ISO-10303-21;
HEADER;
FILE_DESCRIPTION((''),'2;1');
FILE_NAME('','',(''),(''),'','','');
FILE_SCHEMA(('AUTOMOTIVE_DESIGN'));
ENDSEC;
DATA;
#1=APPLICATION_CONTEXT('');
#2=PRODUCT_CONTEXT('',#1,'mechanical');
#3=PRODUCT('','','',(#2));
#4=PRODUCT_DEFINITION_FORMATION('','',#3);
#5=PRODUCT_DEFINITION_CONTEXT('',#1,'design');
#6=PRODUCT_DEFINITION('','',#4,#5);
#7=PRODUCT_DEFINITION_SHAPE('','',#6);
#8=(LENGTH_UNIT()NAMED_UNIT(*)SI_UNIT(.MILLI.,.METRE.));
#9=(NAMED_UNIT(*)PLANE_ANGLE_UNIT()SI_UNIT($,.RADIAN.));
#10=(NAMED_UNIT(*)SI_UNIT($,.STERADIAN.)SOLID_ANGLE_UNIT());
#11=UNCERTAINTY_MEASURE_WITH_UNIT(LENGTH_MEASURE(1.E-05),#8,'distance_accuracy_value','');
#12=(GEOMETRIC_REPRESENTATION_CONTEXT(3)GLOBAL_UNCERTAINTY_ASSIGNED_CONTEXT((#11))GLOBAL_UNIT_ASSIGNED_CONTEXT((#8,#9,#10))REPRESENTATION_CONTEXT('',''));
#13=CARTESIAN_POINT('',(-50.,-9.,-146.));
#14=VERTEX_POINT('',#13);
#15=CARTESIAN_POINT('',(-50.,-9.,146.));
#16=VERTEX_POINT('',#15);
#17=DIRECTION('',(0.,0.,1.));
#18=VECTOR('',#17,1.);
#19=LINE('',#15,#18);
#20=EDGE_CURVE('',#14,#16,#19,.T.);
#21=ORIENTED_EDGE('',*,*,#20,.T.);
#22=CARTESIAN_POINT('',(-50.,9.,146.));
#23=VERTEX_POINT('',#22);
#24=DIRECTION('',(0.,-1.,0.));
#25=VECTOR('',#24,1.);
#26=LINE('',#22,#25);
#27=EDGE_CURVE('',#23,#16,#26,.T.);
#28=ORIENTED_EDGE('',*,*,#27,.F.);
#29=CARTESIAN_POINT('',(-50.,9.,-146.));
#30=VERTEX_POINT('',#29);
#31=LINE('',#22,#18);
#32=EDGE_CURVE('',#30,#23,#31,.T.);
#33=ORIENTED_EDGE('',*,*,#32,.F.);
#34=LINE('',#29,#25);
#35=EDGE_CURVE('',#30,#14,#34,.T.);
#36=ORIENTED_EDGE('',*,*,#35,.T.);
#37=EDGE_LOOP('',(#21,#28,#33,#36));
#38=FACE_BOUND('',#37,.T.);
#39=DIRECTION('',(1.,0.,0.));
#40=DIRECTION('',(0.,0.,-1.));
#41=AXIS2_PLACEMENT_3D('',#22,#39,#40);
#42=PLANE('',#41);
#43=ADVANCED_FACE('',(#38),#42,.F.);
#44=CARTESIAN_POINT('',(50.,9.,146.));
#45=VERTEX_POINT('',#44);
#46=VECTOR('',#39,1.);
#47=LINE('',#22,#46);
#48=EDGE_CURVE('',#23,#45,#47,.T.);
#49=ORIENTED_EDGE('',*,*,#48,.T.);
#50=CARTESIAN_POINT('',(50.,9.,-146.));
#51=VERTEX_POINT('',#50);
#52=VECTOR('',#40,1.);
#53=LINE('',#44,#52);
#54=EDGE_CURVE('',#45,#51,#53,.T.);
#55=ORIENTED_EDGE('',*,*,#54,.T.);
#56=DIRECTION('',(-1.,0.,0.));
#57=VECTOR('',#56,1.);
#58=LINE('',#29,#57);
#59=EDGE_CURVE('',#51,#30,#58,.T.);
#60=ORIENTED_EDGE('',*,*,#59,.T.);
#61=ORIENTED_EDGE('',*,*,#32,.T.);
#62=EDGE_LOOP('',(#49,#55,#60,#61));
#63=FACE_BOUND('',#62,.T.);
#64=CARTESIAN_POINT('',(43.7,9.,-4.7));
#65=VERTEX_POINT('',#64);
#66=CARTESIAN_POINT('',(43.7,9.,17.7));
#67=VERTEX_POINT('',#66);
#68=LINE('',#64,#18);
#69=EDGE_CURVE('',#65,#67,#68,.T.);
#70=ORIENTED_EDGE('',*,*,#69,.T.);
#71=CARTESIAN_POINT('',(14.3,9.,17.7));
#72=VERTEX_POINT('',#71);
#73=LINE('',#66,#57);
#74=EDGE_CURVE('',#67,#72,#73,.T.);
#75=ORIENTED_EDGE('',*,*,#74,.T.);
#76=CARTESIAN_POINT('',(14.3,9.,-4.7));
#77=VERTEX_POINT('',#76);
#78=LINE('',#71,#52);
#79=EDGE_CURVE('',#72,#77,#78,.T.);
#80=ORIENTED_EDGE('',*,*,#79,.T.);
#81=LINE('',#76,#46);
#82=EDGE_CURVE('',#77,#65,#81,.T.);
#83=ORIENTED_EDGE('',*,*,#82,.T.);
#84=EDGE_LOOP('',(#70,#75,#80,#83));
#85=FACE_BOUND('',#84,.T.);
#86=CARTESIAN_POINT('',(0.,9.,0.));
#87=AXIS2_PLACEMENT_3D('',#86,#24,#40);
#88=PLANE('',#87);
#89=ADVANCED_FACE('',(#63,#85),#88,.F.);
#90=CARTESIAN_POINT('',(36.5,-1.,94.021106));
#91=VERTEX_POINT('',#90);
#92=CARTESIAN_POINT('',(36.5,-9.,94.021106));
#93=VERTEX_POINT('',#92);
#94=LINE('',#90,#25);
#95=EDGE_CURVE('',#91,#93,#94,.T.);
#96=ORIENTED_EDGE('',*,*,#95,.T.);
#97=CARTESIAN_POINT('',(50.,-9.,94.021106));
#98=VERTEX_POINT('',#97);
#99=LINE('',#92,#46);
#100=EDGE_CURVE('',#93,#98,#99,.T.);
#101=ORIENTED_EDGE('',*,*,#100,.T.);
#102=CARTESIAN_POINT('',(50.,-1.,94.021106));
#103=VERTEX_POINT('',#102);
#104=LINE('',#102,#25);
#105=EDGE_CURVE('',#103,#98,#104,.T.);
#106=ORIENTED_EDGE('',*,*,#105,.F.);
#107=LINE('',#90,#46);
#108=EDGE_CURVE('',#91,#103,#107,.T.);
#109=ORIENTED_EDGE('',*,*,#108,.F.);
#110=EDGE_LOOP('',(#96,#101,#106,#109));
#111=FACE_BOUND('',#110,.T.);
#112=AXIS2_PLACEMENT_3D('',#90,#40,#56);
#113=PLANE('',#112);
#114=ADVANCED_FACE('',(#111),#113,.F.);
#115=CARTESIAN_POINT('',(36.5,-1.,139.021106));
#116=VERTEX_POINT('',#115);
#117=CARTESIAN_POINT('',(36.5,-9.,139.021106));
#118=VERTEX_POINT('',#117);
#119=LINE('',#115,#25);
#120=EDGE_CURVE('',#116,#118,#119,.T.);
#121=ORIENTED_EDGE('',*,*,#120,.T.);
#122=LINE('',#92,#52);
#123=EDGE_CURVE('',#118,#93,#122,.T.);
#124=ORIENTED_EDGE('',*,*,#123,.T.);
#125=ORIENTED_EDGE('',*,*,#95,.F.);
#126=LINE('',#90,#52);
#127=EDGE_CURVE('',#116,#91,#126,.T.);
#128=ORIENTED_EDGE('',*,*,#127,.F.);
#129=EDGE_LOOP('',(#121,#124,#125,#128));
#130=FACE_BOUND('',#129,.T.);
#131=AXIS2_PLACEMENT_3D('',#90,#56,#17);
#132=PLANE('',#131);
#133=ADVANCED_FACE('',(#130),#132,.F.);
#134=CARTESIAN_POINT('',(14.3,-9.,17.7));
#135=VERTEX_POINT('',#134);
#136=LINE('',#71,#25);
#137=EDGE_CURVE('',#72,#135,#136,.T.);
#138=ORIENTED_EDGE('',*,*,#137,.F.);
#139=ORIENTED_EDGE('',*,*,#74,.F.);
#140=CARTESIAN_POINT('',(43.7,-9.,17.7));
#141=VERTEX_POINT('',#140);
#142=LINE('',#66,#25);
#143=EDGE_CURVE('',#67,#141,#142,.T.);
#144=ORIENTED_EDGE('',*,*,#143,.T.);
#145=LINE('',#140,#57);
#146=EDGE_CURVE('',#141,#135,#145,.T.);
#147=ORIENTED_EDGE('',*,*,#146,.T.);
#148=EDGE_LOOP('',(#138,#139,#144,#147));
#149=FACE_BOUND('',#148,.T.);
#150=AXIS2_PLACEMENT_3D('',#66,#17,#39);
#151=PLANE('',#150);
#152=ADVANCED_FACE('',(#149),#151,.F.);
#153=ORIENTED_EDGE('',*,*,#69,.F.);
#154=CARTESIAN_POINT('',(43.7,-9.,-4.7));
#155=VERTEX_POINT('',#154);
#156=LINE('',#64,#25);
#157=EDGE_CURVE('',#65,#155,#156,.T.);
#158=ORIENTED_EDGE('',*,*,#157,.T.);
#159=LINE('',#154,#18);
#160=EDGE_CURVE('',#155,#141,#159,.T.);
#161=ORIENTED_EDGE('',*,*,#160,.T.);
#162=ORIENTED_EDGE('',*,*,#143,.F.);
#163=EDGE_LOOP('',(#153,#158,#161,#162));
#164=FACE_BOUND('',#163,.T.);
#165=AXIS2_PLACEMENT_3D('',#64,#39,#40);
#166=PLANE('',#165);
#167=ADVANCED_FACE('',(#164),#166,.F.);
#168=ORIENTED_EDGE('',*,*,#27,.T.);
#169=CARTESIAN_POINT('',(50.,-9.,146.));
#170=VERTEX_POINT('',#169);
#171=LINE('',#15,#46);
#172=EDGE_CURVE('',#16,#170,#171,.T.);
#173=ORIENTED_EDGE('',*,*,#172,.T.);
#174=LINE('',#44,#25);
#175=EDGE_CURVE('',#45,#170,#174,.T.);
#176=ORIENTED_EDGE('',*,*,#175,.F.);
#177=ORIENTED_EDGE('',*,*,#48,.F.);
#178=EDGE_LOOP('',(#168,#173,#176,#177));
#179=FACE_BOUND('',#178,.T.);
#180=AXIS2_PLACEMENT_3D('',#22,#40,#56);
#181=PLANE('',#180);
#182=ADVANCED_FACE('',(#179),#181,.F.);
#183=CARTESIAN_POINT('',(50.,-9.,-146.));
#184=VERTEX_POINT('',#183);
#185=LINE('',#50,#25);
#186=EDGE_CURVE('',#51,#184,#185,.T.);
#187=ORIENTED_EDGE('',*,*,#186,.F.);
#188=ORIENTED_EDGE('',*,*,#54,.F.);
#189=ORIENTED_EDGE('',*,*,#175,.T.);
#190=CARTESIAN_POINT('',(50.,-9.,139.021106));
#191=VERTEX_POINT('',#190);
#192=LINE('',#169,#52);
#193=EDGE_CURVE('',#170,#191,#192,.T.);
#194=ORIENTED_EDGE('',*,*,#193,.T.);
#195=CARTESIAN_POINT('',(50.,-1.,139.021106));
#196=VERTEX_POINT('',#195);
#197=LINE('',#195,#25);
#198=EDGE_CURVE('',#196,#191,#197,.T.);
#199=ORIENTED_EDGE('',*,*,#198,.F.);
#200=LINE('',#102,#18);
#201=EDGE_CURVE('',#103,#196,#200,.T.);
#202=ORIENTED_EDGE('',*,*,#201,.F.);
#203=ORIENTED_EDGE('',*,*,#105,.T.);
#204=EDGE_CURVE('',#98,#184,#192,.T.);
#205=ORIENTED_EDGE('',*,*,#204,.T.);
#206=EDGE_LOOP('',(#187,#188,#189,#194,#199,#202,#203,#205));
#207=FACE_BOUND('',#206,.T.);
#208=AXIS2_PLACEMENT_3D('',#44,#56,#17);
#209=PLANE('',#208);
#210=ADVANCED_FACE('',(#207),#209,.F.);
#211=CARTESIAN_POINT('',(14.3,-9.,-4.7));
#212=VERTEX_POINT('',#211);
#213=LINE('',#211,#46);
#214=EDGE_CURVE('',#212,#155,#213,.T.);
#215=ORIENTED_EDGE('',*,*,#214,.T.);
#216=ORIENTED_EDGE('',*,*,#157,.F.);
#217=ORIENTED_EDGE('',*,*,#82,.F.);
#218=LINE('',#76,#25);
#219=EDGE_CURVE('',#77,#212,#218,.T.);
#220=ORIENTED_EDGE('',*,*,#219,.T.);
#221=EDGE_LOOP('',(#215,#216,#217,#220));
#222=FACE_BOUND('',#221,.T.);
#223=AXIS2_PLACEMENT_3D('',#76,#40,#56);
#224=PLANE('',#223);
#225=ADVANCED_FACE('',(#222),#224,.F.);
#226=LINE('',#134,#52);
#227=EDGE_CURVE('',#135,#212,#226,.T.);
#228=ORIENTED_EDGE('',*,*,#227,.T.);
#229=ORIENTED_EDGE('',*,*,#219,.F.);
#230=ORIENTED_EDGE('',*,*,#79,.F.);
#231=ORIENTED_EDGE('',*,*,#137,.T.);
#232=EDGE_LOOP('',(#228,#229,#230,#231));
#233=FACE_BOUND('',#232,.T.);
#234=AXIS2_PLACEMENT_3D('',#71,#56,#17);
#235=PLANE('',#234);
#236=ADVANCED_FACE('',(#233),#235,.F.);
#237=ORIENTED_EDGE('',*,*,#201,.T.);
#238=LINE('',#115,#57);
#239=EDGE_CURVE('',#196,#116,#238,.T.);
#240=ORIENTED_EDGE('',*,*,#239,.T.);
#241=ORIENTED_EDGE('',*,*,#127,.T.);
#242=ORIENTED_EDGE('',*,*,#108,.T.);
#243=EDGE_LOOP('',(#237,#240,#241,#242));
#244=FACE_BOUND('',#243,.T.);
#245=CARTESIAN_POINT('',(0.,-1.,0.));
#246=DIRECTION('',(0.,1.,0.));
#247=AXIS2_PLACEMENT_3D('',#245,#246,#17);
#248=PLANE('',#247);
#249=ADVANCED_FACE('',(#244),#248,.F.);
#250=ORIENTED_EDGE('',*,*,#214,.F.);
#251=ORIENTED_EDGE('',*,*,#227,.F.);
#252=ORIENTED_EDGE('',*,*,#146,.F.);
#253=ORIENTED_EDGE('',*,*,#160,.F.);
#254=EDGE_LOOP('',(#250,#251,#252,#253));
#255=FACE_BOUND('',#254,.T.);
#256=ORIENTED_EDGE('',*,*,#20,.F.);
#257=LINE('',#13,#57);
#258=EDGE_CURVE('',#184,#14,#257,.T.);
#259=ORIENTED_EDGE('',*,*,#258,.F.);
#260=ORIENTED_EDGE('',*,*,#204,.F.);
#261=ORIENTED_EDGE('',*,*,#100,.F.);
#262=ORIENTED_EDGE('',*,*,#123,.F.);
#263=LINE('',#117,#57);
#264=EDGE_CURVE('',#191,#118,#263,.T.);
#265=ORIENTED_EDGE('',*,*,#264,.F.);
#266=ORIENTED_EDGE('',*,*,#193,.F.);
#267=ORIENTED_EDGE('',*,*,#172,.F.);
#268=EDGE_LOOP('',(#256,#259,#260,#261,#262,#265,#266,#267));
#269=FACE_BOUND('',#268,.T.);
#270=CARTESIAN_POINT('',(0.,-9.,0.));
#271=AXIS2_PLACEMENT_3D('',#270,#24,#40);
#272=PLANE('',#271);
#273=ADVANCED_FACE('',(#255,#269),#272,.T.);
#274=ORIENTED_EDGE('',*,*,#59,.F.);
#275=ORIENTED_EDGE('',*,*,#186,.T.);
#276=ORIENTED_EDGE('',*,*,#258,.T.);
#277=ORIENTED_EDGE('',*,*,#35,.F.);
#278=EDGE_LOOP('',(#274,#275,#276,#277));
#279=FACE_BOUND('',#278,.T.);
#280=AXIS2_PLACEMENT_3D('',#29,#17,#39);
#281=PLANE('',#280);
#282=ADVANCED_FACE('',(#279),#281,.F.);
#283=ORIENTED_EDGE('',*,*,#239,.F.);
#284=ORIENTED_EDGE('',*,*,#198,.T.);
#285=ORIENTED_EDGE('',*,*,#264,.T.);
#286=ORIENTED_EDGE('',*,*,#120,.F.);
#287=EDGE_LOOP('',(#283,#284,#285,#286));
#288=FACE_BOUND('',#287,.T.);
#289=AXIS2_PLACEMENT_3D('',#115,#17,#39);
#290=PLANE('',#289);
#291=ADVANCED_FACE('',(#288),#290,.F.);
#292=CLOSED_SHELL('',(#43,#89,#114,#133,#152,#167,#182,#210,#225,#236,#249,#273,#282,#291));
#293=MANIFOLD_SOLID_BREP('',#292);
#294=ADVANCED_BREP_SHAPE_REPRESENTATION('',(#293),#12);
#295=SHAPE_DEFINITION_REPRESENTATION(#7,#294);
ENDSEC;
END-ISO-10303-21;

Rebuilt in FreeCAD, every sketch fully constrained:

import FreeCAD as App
import Part
import Sketcher
Q = App.Units.Quantity


def add_polygon(sketch, points):
    """Adds a closed chain of lines whose ends are joined by coincident constraints."""
    first, n = sketch.GeometryCount, len(points)
    for a, b in zip(points, points[1:] + points[:1]):
        sketch.addGeometry(Part.LineSegment(App.Vector(*a, 0), App.Vector(*b, 0)), False)
    for i in range(n):
        sketch.addConstraint(Sketcher.Constraint("Coincident", first + i, 2, first + (i + 1) % n, 1))

doc = App.newDocument("Part")
body = doc.addObject("PartDesign::Body", "Body")

# Sketch on XZ plane
sketch1 = body.newObject("Sketcher::SketchObject", "Sketch")
sketch1.AttachmentSupport = (doc.getObject("XZ_Plane"), [""])
sketch1.MapMode = "FlatFace"
add_polygon(sketch1, [(-50, -146), (-50, 146), (50, 146), (50, -146)])  # lines 0-3
sketch1.addConstraint(Sketcher.Constraint("Vertical", 0))
sketch1.addConstraint(Sketcher.Constraint("Horizontal", 1))
sketch1.addConstraint(Sketcher.Constraint("Vertical", 2))
sketch1.addConstraint(Sketcher.Constraint("Horizontal", 3))
sketch1.addConstraint(Sketcher.Constraint("Symmetric", 0, 2, 2, 2, -1, 1))
sketch1.addConstraint(Sketcher.Constraint("DistanceX", 1, 1, 1, 2, Q("100 mm")))
sketch1.addConstraint(Sketcher.Constraint("DistanceY", 0, 1, 0, 2, Q("292 mm")))
pad1 = body.newObject("PartDesign::Pad", "Pad")
pad1.Profile = sketch1
pad1.Length = 18
pad1.Midplane = True

# Sketch on XZ plane
sketch2 = body.newObject("Sketcher::SketchObject", "Sketch001")
sketch2.AttachmentSupport = (doc.getObject("XZ_Plane"), [""])
sketch2.MapMode = "FlatFace"
sketch2.AttachmentOffset = App.Placement(App.Vector(0, 0, 9), App.Rotation())
add_polygon(sketch2, [(14, 18), (14, -5), (44, -5), (44, 18)])  # lines 0-3
sketch2.addConstraint(Sketcher.Constraint("Vertical", 0))
sketch2.addConstraint(Sketcher.Constraint("Horizontal", 1))
sketch2.addConstraint(Sketcher.Constraint("Vertical", 2))
sketch2.addConstraint(Sketcher.Constraint("Horizontal", 3))
sketch2.addConstraint(Sketcher.Constraint("DistanceX", 1, 1, 1, 2, Q("29.4 mm")))
sketch2.addConstraint(Sketcher.Constraint("DistanceY", 0, 2, 0, 1, Q("22.4 mm")))
sketch2.addConstraint(Sketcher.Constraint("DistanceX", -1, 1, 0, 2, Q("14.3 mm")))
sketch2.addConstraint(Sketcher.Constraint("DistanceY", 0, 2, -1, 1, Q("4.7 mm")))
pocket1 = body.newObject("PartDesign::Pocket", "Pocket")
pocket1.Profile = sketch2
pocket1.Type = "ThroughAll"

# Sketch on XZ plane
sketch3 = body.newObject("Sketcher::SketchObject", "Sketch002")
sketch3.AttachmentSupport = (doc.getObject("XZ_Plane"), [""])
sketch3.MapMode = "FlatFace"
sketch3.AttachmentOffset = App.Placement(App.Vector(0, 0, 9), App.Rotation())
add_polygon(sketch3, [(36, 139), (36, 94), (50, 94), (50, 139)])  # lines 0-3
sketch3.addConstraint(Sketcher.Constraint("Vertical", 0))
sketch3.addConstraint(Sketcher.Constraint("Horizontal", 1))
sketch3.addConstraint(Sketcher.Constraint("Vertical", 2))
sketch3.addConstraint(Sketcher.Constraint("Horizontal", 3))
sketch3.addConstraint(Sketcher.Constraint("DistanceY", 0, 2, 0, 1, Q("45 mm")))
sketch3.addConstraint(Sketcher.Constraint("DistanceX", 1, 1, 1, 2, Q("13.5 mm")))
sketch3.addConstraint(Sketcher.Constraint("DistanceX", -1, 1, 1, 2, Q("50 mm")))
sketch3.addConstraint(Sketcher.Constraint("DistanceY", -1, 1, 0, 2, Q("94.021106 mm")))
pocket2 = body.newObject("PartDesign::Pocket", "Pocket001")
pocket2.Profile = sketch3
pocket2.Length = 8

doc.recompute()
